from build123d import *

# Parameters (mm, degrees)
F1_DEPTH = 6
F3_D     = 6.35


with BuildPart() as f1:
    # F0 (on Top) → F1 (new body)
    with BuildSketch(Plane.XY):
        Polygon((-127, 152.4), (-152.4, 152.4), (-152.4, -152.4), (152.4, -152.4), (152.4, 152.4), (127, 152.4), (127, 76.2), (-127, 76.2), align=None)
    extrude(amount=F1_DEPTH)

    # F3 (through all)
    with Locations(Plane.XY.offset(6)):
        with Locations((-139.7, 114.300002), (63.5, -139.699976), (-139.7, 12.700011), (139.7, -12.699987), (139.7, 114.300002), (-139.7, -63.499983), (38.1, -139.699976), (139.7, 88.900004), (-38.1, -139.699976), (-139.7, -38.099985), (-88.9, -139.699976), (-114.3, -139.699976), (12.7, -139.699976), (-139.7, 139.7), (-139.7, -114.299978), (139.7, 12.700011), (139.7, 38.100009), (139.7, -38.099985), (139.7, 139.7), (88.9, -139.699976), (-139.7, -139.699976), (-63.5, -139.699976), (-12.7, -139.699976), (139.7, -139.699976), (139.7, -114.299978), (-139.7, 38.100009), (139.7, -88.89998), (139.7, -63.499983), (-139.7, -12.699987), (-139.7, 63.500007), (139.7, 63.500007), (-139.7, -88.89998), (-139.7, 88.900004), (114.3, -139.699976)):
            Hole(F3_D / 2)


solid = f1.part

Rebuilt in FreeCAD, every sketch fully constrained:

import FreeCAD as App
import Part
import Sketcher

V = App.Vector
Q = App.Units.Quantity


def add_polygon(sketch, points):
    """Adds a closed chain of lines whose ends are joined by coincident constraints."""
    first, n = sketch.GeometryCount, len(points)
    for a, b in zip(points, points[1:] + points[:1]):
        sketch.addGeometry(Part.LineSegment(App.Vector(*a, 0), App.Vector(*b, 0)), False)
    for i in range(n):
        sketch.addConstraint(Sketcher.Constraint("Coincident", first + i, 2, first + (i + 1) % n, 1))

doc = App.newDocument("Part")
body = doc.addObject("PartDesign::Body", "Body")

sketch1 = body.newObject("Sketcher::SketchObject", "Sketch")
sketch1.AttachmentSupport = (doc.getObject("XY_Plane"), [""])
sketch1.MapMode = "FlatFace"
add_polygon(sketch1, [(-127, 152.4), (-152.4, 152.4), (-152.4, -152.4), (152.4, -152.4), (152.4, 152.4), (127, 152.4), (127, 76.2), (-127, 76.2)])
sketch1.addConstraint(Sketcher.Constraint("Horizontal", 0))
sketch1.addConstraint(Sketcher.Constraint("Vertical", 1))
sketch1.addConstraint(Sketcher.Constraint("Horizontal", 2))
sketch1.addConstraint(Sketcher.Constraint("Vertical", 3))
sketch1.addConstraint(Sketcher.Constraint("Horizontal", 4))
sketch1.addConstraint(Sketcher.Constraint("Vertical", 5))
sketch1.addConstraint(Sketcher.Constraint("Horizontal", 6))
sketch1.addConstraint(Sketcher.Constraint("Vertical", 7))
sketch1.addConstraint(Sketcher.Constraint("Symmetric", 0, 2, 2, 2, -1, 1))
sketch1.addConstraint(Sketcher.Constraint("Symmetric", 4, 2, 7, 2, -2))
sketch1.addConstraint(Sketcher.Constraint("Equal", 2, 1))
sketch1.addConstraint(Sketcher.Constraint("DistanceX", 0, 2, 0, 1, Q("1 in")))
sketch1.addConstraint(Sketcher.Constraint("DistanceX", 2, 1, 2, 2, Q("12 in")))
sketch1.addConstraint(Sketcher.Constraint("DistanceY", 5, 2, 5, 1, Q("3 in")))
pad1 = body.newObject("PartDesign::Pad", "Pad")
pad1.Profile = sketch1
pad1.Length = 6

sketch2 = body.newObject("Sketcher::SketchObject", "Sketch001")
sketch2.AttachmentSupport = (doc.getObject("XY_Plane"), [""])
sketch2.MapMode = "FlatFace"
sketch2.AttachmentOffset = App.Placement(V(0, 0, 6), App.Rotation())
sketch2.addGeometry(Part.Circle(V(-139.7, 114.300002, 0), V(0, 0, 1), 3.175), False)
sketch2.addGeometry(Part.Circle(V(63.5, -139.699976, 0), V(0, 0, 1), 3.175), False)
sketch2.addGeometry(Part.Circle(V(-139.7, 12.700011, 0), V(0, 0, 1), 3.175), False)
sketch2.addGeometry(Part.Circle(V(139.7, -12.699987, 0), V(0, 0, 1), 3.175), False)
sketch2.addGeometry(Part.Circle(V(139.7, 114.300002, 0), V(0, 0, 1), 3.175), False)
sketch2.addGeometry(Part.Circle(V(-139.7, -63.499983, 0), V(0, 0, 1), 3.175), False)
sketch2.addGeometry(Part.Circle(V(38.1, -139.699976, 0), V(0, 0, 1), 3.175), False)
sketch2.addGeometry(Part.Circle(V(139.7, 88.900004, 0), V(0, 0, 1), 3.175), False)
sketch2.addGeometry(Part.Circle(V(-38.1, -139.699976, 0), V(0, 0, 1), 3.175), False)
sketch2.addGeometry(Part.Circle(V(-139.7, -38.099985, 0), V(0, 0, 1), 3.175), False)
sketch2.addGeometry(Part.Circle(V(-88.9, -139.699976, 0), V(0, 0, 1), 3.175), False)
sketch2.addGeometry(Part.Circle(V(-114.3, -139.699976, 0), V(0, 0, 1), 3.175), False)
sketch2.addGeometry(Part.Circle(V(12.7, -139.699976, 0), V(0, 0, 1), 3.175), False)
sketch2.addGeometry(Part.Circle(V(-139.7, 139.7, 0), V(0, 0, 1), 3.175), False)
sketch2.addGeometry(Part.Circle(V(-139.7, -114.299978, 0), V(0, 0, 1), 3.175), False)
sketch2.addGeometry(Part.Circle(V(139.7, 12.700011, 0), V(0, 0, 1), 3.175), False)
sketch2.addGeometry(Part.Circle(V(139.7, 38.100009, 0), V(0, 0, 1), 3.175), False)
sketch2.addGeometry(Part.Circle(V(139.7, -38.099985, 0), V(0, 0, 1), 3.175), False)
sketch2.addGeometry(Part.Circle(V(139.7, 139.7, 0), V(0, 0, 1), 3.175), False)
sketch2.addGeometry(Part.Circle(V(88.9, -139.699976, 0), V(0, 0, 1), 3.175), False)
sketch2.addGeometry(Part.Circle(V(-139.7, -139.699976, 0), V(0, 0, 1), 3.175), False)
sketch2.addGeometry(Part.Circle(V(-63.5, -139.699976, 0), V(0, 0, 1), 3.175), False)
sketch2.addGeometry(Part.Circle(V(-12.7, -139.699976, 0), V(0, 0, 1), 3.175), False)
sketch2.addGeometry(Part.Circle(V(139.7, -139.699976, 0), V(0, 0, 1), 3.175), False)
sketch2.addGeometry(Part.Circle(V(139.7, -114.299978, 0), V(0, 0, 1), 3.175), False)
sketch2.addGeometry(Part.Circle(V(-139.7, 38.100009, 0), V(0, 0, 1), 3.175), False)
sketch2.addGeometry(Part.Circle(V(139.7, -88.89998, 0), V(0, 0, 1), 3.175), False)
sketch2.addGeometry(Part.Circle(V(139.7, -63.499983, 0), V(0, 0, 1), 3.175), False)
sketch2.addGeometry(Part.Circle(V(-139.7, -12.699987, 0), V(0, 0, 1), 3.175), False)
sketch2.addGeometry(Part.Circle(V(-139.7, 63.500007, 0), V(0, 0, 1), 3.175), False)
sketch2.addGeometry(Part.Circle(V(139.7, 63.500007, 0), V(0, 0, 1), 3.175), False)
sketch2.addGeometry(Part.Circle(V(-139.7, -88.89998, 0), V(0, 0, 1), 3.175), False)
sketch2.addGeometry(Part.Circle(V(-139.7, 88.900004, 0), V(0, 0, 1), 3.175), False)
sketch2.addGeometry(Part.Circle(V(114.3, -139.699976, 0), V(0, 0, 1), 3.175), False)
sketch2.addConstraint(Sketcher.Constraint("Equal", 0, 1))
sketch2.addConstraint(Sketcher.Constraint("Equal", 1, 2))
sketch2.addConstraint(Sketcher.Constraint("Equal", 2, 3))
sketch2.addConstraint(Sketcher.Constraint("Equal", 3, 4))
sketch2.addConstraint(Sketcher.Constraint("Equal", 4, 5))
sketch2.addConstraint(Sketcher.Constraint("Equal", 5, 6))
sketch2.addConstraint(Sketcher.Constraint("Equal", 6, 7))
sketch2.addConstraint(Sketcher.Constraint("Equal", 7, 8))
sketch2.addConstraint(Sketcher.Constraint("Equal", 8, 9))
sketch2.addConstraint(Sketcher.Constraint("Equal", 9, 10))
sketch2.addConstraint(Sketcher.Constraint("Equal", 10, 11))
sketch2.addConstraint(Sketcher.Constraint("Equal", 11, 12))
sketch2.addConstraint(Sketcher.Constraint("Equal", 12, 13))
sketch2.addConstraint(Sketcher.Constraint("Equal", 13, 14))
sketch2.addConstraint(Sketcher.Constraint("Equal", 14, 15))
sketch2.addConstraint(Sketcher.Constraint("Equal", 15, 16))
sketch2.addConstraint(Sketcher.Constraint("Equal", 16, 17))
sketch2.addConstraint(Sketcher.Constraint("Equal", 17, 18))
sketch2.addConstraint(Sketcher.Constraint("Equal", 18, 19))
sketch2.addConstraint(Sketcher.Constraint("Equal", 19, 20))
sketch2.addConstraint(Sketcher.Constraint("Equal", 20, 21))
sketch2.addConstraint(Sketcher.Constraint("Equal", 21, 22))
sketch2.addConstraint(Sketcher.Constraint("Equal", 22, 23))
sketch2.addConstraint(Sketcher.Constraint("Equal", 23, 24))
sketch2.addConstraint(Sketcher.Constraint("Equal", 24, 25))
sketch2.addConstraint(Sketcher.Constraint("Equal", 25, 26))
sketch2.addConstraint(Sketcher.Constraint("Equal", 26, 27))
sketch2.addConstraint(Sketcher.Constraint("Equal", 27, 28))
sketch2.addConstraint(Sketcher.Constraint("Equal", 28, 29))
sketch2.addConstraint(Sketcher.Constraint("Equal", 29, 30))
sketch2.addConstraint(Sketcher.Constraint("Equal", 30, 31))
sketch2.addConstraint(Sketcher.Constraint("Equal", 31, 32))
sketch2.addConstraint(Sketcher.Constraint("Equal", 32, 33))
sketch2.addConstraint(Sketcher.Constraint("Symmetric", 0, 3, 4, 3, -2))
sketch2.addConstraint(Sketcher.Constraint("Symmetric", 6, 3, 8, 3, -2))
sketch2.addConstraint(Sketcher.Constraint("Symmetric", 2, 3, 15, 3, -2))
sketch2.addConstraint(Sketcher.Constraint("Symmetric", 9, 3, 17, 3, -2))
sketch2.addConstraint(Sketcher.Constraint("Symmetric", 13, 3, 18, 3, -2))
sketch2.addConstraint(Sketcher.Constraint("Symmetric", 10, 3, 19, 3, -2))
sketch2.addConstraint(Sketcher.Constraint("Symmetric", 1, 3, 21, 3, -2))
sketch2.addConstraint(Sketcher.Constraint("Symmetric", 12, 3, 22, 3, -2))
sketch2.addConstraint(Sketcher.Constraint("Symmetric", 20, 3, 23, 3, -2))
sketch2.addConstraint(Sketcher.Constraint("Symmetric", 14, 3, 24, 3, -2))
sketch2.addConstraint(Sketcher.Constraint("Symmetric", 16, 3, 25, 3, -2))
sketch2.addConstraint(Sketcher.Constraint("Symmetric", 5, 3, 27, 3, -2))
sketch2.addConstraint(Sketcher.Constraint("Symmetric", 3, 3, 28, 3, -2))
sketch2.addConstraint(Sketcher.Constraint("Symmetric", 29, 3, 30, 3, -2))
sketch2.addConstraint(Sketcher.Constraint("Symmetric", 26, 3, 31, 3, -2))
sketch2.addConstraint(Sketcher.Constraint("Symmetric", 7, 3, 32, 3, -2))
sketch2.addConstraint(Sketcher.Constraint("Symmetric", 11, 3, 33, 3, -2))
sketch2.addConstraint(Sketcher.Constraint("Horizontal", 1, 3, 6, 3))
sketch2.addConstraint(Sketcher.Constraint("Horizontal", 8, 3, 10, 3))
sketch2.addConstraint(Sketcher.Constraint("Horizontal", 10, 3, 11, 3))
sketch2.addConstraint(Sketcher.Constraint("Horizontal", 11, 3, 12, 3))
sketch2.addConstraint(Sketcher.Constraint("Horizontal", 19, 3, 20, 3))
sketch2.addConstraint(Sketcher.Constraint("Vertical", 0, 3, 2, 3))
sketch2.addConstraint(Sketcher.Constraint("Vertical", 3, 3, 4, 3))
sketch2.addConstraint(Sketcher.Constraint("Vertical", 2, 3, 5, 3))
sketch2.addConstraint(Sketcher.Constraint("Vertical", 4, 3, 7, 3))
sketch2.addConstraint(Sketcher.Constraint("Vertical", 5, 3, 9, 3))
sketch2.addConstraint(Sketcher.Constraint("Vertical", 9, 3, 13, 3))
sketch2.addConstraint(Sketcher.Constraint("Vertical", 13, 3, 14, 3))
sketch2.addConstraint(Sketcher.Constraint("Vertical", 15, 3, 16, 3))
sketch2.addConstraint(Sketcher.Constraint("Vertical", 14, 3, 20, 3))
sketch2.addConstraint(Sketcher.Constraint("Vertical", 24, 3, 26, 3))
sketch2.addConstraint(Sketcher.Constraint("Vertical", 28, 3, 29, 3))
sketch2.addConstraint(Sketcher.Constraint("Diameter", 0, Q("0.25 in")))
sketch2.addConstraint(Sketcher.Constraint("DistanceX", 0, 3, 1, 3, Q("8 in")))
sketch2.addConstraint(Sketcher.Constraint("DistanceX", 1, 3, 3, 3, Q("3 in")))
sketch2.addConstraint(Sketcher.Constraint("DistanceY", 3, 3, 2, 3, Q("0.9999999 in")))
sketch2.addConstraint(Sketcher.Constraint("DistanceY", 5, 3, 3, 3, Q("1.9999998 in")))
sketch2.addConstraint(Sketcher.Constraint("DistanceX", 6, 3, 1, 3, Q("1 in")))
sketch2.addConstraint(Sketcher.Constraint("DistanceY", 7, 3, 4, 3, Q("0.9999999 in")))
sketch2.addConstraint(Sketcher.Constraint("DistanceY", 5, 3, 9, 3, Q("0.9999999 in")))
sketch2.addConstraint(Sketcher.Constraint("DistanceX", 10, 3, 8, 3, Q("2 in")))
sketch2.addConstraint(Sketcher.Constraint("DistanceX", 11, 3, 10, 3, Q("1 in")))
sketch2.addConstraint(Sketcher.Constraint("DistanceX", 12, 3, 6, 3, Q("1 in")))
sketch2.addConstraint(Sketcher.Constraint("DistanceY", 0, 3, 13, 3, Q("0.9999999 in")))
sketch2.addConstraint(Sketcher.Constraint("DistanceY", 11, 3, 14, 3, Q("0.9999999 in")))
sketch2.addConstraint(Sketcher.Constraint("DistanceY", 14, 3, 5, 3, Q("1.9999998 in")))
sketch2.addConstraint(Sketcher.Constraint("DistanceY", 15, 3, 16, 3, Q("0.9999999 in")))
sketch2.addConstraint(Sketcher.Constraint("DistanceY", 16, 3, 7, 3, Q("1.9999998 in")))
sketch2.addConstraint(Sketcher.Constraint("DistanceY", 24, 3, 26, 3, Q("0.9999999 in")))
sketch2.addConstraint(Sketcher.Constraint("DistanceY", 25, 3, 29, 3, Q("0.9999999 in")))
sketch2.addConstraint(Sketcher.Constraint("DistanceY", -1, 1, 0, 3, Q("4.5000001 in")))
doc.recompute()
hole = body.newObject("PartDesign::Hole", "Hole")
hole.Profile = sketch2
hole.ThreadType = "None"
hole.Diameter = Q("0.25 in")
hole.DepthType = "ThroughAll"

doc.recompute()
